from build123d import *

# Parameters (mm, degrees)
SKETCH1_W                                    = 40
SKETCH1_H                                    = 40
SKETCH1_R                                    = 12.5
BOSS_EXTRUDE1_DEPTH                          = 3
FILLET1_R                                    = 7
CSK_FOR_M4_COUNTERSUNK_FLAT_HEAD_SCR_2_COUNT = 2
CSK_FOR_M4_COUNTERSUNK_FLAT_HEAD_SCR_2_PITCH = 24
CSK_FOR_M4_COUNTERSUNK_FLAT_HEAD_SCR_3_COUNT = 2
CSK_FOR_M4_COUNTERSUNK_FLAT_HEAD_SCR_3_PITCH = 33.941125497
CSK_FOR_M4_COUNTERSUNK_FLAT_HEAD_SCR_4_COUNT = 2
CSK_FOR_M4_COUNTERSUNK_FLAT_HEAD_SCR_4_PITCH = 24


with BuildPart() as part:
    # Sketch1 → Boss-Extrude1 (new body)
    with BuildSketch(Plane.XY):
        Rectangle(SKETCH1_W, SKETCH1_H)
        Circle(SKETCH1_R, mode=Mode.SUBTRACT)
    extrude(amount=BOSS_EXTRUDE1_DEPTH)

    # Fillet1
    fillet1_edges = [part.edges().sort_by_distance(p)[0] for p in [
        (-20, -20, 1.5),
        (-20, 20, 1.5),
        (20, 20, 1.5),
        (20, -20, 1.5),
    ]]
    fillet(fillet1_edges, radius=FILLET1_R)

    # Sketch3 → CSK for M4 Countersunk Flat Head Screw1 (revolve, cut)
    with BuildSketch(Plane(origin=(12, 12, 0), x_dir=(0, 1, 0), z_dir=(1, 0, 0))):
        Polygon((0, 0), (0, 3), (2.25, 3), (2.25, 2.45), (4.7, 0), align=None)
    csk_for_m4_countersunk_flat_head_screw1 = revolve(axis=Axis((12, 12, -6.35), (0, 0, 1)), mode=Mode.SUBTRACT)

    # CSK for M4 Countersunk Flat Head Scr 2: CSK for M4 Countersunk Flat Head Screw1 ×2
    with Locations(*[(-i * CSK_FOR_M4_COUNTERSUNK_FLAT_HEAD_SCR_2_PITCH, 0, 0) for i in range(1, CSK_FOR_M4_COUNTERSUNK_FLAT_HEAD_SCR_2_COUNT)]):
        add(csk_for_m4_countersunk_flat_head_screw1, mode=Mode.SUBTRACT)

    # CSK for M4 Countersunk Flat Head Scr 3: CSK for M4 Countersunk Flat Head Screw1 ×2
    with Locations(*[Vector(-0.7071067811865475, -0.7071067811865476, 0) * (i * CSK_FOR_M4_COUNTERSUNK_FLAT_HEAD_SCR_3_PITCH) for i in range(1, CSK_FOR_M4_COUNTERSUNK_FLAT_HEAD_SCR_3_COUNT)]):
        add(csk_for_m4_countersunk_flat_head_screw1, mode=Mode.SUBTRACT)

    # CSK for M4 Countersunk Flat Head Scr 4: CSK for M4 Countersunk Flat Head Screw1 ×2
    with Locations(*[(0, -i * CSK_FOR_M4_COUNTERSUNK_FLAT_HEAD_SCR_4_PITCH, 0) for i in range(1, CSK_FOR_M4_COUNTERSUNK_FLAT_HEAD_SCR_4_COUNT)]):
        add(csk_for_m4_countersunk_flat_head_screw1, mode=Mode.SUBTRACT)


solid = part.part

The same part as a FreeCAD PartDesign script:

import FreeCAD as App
import Part
import Sketcher
from FreeCAD import Vector
Q = App.Units.Quantity


def edges_at(feature, points):
    """Names of the edges that pass closest to the given points."""
    edges = feature.Shape.Edges
    near = lambda p: min(range(len(edges)), key=lambda i: edges[i].distToShape(Part.Vertex(*p))[0])
    return sorted({f"Edge{near(p) + 1}" for p in points})


def add_polygon(sketch, points):
    """Adds a closed chain of lines whose ends are joined by coincident constraints."""
    first, n = sketch.GeometryCount, len(points)
    for a, b in zip(points, points[1:] + points[:1]):
        sketch.addGeometry(Part.LineSegment(App.Vector(*a, 0), App.Vector(*b, 0)), False)
    for i in range(n):
        sketch.addConstraint(Sketcher.Constraint("Coincident", first + i, 2, first + (i + 1) % n, 1))

doc = App.newDocument("Part")
params = doc.addObject("Spreadsheet::Sheet", "Params")
for row, (alias, value) in enumerate([
    ("sketch1_diameter", "25 mm"),
    ("sketch1_width", "40 mm"),
    ("pad1_length", "3 mm"),
    ("fillet_radius", "7 mm"),
    ("sketch2_height", "3 mm"),
    ("sketch2_width", "4.7 mm"),
    ("sketch2_width2", "2.25 mm"),
    ("groove_angle", "360 deg"),
    ("linearpattern_pitch", "24 mm"),
    ("linearpattern2_pitch", "33.941125 mm"),
    ("linearpattern3_pitch", "24 mm"),
], start=1):
    params.set(f"A{row}", alias)
    params.set(f"B{row}", "=" + value)
    params.setAlias(f"B{row}", alias)

body = doc.addObject("PartDesign::Body", "Body")

# Sketch on XY plane
sketch1 = body.newObject("Sketcher::SketchObject", "Sketch")
sketch1.AttachmentSupport = (doc.getObject("XY_Plane"), [""])
sketch1.MapMode = "FlatFace"
add_polygon(sketch1, [(-20, 20), (-20, -20), (20, -20), (20, 20)])  # lines 0-3
sketch1.addGeometry(Part.Circle(Vector(0, 0, 0), Vector(0, 0, 1), 12), False)  # 4
sketch1.addConstraint([
    Sketcher.Constraint("Vertical", 0),
    Sketcher.Constraint("Horizontal", 1),
    Sketcher.Constraint("Vertical", 2),
    Sketcher.Constraint("Horizontal", 3),
    Sketcher.Constraint("Coincident", 4, 3, -1, 1),
    Sketcher.Constraint("Symmetric", 0, 2, 2, 2, -1, 1),
    Sketcher.Constraint("Equal", 3, 0),
    Sketcher.Constraint("Diameter", 4, 25.0),
    Sketcher.Constraint("DistanceX", 1, 1, 1, 2, 40.0),
])
sketch1.setExpression("Constraints[11]", "Params.sketch1_diameter")
sketch1.setExpression("Constraints[12]", "Params.sketch1_width")
pad1 = body.newObject("PartDesign::Pad", "Pad")
pad1.Profile = sketch1
pad1.setExpression("Length", "Params.pad1_length")
doc.recompute()

fillet = body.newObject("PartDesign::Fillet", "Fillet")
fillet.Base = (pad1, edges_at(pad1, [
    (-20, -20, 1.5),
    (-20, 20, 1.5),
    (20, 20, 1.5),
    (20, -20, 1.5),
]))
fillet.setExpression("Radius", "Params.fillet_radius")

# Sketch on YZ plane
sketch2 = body.newObject("Sketcher::SketchObject", "Sketch001")
sketch2.AttachmentSupport = (doc.getObject("YZ_Plane"), [""])
sketch2.MapMode = "FlatFace"
sketch2.AttachmentOffset = App.Placement(Vector(0, 0, 12), App.Rotation())
add_polygon(sketch2, [(12, 3), (12, 0), (16.7, 0), (14.2, 2.5), (14.2, 3)])  # lines 0-4
sketch2.addGeometry(Part.LineSegment(Vector(12, 0, 0), Vector(12, 3, 0)), True)  # axis
sketch2.addConstraint([
    Sketcher.Constraint("Vertical", 0),
    Sketcher.Constraint("Horizontal", 1),
    Sketcher.Constraint("Vertical", 3),
    Sketcher.Constraint("Horizontal", 4),
    Sketcher.Constraint("Vertical", 5),
    Sketcher.Constraint("Coincident", 5, 1, 0, 2),
    Sketcher.Constraint("PointOnObject", 0, 2, -1),
    Sketcher.Constraint("Horizontal", 3, 2, 5, 2),
    Sketcher.Constraint("DistanceY", 0, 2, 0, 1, 3.0),
    Sketcher.Constraint("Angle", 2, Q("135 deg")),
    Sketcher.Constraint("DistanceX", 1, 1, 1, 2, 4.7),
    Sketcher.Constraint("DistanceX", -1, 1, 0, 2, 12.0),
    Sketcher.Constraint("DistanceX", 4, 2, 4, 1, 2.25),
])
sketch2.setExpression("Constraints[13]", "Params.sketch2_height")
sketch2.setExpression("Constraints[15]", "Params.sketch2_width")
sketch2.setExpression("Constraints[17]", "Params.sketch2_width2")
groove = body.newObject("PartDesign::Groove", "Groove")
groove.Profile = sketch2
groove.ReferenceAxis = (sketch2, ["Axis0"])
groove.setExpression("Angle", "Params.groove_angle")
doc.recompute()

linearpattern = body.newObject("PartDesign::LinearPattern", "LinearPattern")
linearpattern.Originals = [groove]
linearpattern.Direction = (doc.getObject("X_Axis"), [""])
linearpattern.Mode = "offset"
linearpattern.setExpression("Offset", "Params.linearpattern_pitch")
linearpattern.Occurrences = 2
linearpattern.Reversed = True
body.Tip = linearpattern
doc.recompute()

datumline = body.newObject("PartDesign::Line", "DatumLine")
datumline.Placement = App.Placement(Vector(0, 0, 0), App.Rotation(Vector(0, 0, 1), Vector(-0.707106781, -0.707106781, 0)))
linearpattern2 = body.newObject("PartDesign::LinearPattern", "LinearPattern001")
linearpattern2.Originals = [groove]
linearpattern2.Direction = (datumline, [""])
linearpattern2.Mode = "offset"
linearpattern2.setExpression("Offset", "Params.linearpattern2_pitch")
linearpattern2.Occurrences = 2
body.Tip = linearpattern2
doc.recompute()

linearpattern3 = body.newObject("PartDesign::LinearPattern", "LinearPattern002")
linearpattern3.Originals = [groove]
linearpattern3.Direction = (doc.getObject("Y_Axis"), [""])
linearpattern3.Mode = "offset"
linearpattern3.setExpression("Offset", "Params.linearpattern3_pitch")
linearpattern3.Occurrences = 2
linearpattern3.Reversed = True
body.Tip = linearpattern3

doc.recompute()
